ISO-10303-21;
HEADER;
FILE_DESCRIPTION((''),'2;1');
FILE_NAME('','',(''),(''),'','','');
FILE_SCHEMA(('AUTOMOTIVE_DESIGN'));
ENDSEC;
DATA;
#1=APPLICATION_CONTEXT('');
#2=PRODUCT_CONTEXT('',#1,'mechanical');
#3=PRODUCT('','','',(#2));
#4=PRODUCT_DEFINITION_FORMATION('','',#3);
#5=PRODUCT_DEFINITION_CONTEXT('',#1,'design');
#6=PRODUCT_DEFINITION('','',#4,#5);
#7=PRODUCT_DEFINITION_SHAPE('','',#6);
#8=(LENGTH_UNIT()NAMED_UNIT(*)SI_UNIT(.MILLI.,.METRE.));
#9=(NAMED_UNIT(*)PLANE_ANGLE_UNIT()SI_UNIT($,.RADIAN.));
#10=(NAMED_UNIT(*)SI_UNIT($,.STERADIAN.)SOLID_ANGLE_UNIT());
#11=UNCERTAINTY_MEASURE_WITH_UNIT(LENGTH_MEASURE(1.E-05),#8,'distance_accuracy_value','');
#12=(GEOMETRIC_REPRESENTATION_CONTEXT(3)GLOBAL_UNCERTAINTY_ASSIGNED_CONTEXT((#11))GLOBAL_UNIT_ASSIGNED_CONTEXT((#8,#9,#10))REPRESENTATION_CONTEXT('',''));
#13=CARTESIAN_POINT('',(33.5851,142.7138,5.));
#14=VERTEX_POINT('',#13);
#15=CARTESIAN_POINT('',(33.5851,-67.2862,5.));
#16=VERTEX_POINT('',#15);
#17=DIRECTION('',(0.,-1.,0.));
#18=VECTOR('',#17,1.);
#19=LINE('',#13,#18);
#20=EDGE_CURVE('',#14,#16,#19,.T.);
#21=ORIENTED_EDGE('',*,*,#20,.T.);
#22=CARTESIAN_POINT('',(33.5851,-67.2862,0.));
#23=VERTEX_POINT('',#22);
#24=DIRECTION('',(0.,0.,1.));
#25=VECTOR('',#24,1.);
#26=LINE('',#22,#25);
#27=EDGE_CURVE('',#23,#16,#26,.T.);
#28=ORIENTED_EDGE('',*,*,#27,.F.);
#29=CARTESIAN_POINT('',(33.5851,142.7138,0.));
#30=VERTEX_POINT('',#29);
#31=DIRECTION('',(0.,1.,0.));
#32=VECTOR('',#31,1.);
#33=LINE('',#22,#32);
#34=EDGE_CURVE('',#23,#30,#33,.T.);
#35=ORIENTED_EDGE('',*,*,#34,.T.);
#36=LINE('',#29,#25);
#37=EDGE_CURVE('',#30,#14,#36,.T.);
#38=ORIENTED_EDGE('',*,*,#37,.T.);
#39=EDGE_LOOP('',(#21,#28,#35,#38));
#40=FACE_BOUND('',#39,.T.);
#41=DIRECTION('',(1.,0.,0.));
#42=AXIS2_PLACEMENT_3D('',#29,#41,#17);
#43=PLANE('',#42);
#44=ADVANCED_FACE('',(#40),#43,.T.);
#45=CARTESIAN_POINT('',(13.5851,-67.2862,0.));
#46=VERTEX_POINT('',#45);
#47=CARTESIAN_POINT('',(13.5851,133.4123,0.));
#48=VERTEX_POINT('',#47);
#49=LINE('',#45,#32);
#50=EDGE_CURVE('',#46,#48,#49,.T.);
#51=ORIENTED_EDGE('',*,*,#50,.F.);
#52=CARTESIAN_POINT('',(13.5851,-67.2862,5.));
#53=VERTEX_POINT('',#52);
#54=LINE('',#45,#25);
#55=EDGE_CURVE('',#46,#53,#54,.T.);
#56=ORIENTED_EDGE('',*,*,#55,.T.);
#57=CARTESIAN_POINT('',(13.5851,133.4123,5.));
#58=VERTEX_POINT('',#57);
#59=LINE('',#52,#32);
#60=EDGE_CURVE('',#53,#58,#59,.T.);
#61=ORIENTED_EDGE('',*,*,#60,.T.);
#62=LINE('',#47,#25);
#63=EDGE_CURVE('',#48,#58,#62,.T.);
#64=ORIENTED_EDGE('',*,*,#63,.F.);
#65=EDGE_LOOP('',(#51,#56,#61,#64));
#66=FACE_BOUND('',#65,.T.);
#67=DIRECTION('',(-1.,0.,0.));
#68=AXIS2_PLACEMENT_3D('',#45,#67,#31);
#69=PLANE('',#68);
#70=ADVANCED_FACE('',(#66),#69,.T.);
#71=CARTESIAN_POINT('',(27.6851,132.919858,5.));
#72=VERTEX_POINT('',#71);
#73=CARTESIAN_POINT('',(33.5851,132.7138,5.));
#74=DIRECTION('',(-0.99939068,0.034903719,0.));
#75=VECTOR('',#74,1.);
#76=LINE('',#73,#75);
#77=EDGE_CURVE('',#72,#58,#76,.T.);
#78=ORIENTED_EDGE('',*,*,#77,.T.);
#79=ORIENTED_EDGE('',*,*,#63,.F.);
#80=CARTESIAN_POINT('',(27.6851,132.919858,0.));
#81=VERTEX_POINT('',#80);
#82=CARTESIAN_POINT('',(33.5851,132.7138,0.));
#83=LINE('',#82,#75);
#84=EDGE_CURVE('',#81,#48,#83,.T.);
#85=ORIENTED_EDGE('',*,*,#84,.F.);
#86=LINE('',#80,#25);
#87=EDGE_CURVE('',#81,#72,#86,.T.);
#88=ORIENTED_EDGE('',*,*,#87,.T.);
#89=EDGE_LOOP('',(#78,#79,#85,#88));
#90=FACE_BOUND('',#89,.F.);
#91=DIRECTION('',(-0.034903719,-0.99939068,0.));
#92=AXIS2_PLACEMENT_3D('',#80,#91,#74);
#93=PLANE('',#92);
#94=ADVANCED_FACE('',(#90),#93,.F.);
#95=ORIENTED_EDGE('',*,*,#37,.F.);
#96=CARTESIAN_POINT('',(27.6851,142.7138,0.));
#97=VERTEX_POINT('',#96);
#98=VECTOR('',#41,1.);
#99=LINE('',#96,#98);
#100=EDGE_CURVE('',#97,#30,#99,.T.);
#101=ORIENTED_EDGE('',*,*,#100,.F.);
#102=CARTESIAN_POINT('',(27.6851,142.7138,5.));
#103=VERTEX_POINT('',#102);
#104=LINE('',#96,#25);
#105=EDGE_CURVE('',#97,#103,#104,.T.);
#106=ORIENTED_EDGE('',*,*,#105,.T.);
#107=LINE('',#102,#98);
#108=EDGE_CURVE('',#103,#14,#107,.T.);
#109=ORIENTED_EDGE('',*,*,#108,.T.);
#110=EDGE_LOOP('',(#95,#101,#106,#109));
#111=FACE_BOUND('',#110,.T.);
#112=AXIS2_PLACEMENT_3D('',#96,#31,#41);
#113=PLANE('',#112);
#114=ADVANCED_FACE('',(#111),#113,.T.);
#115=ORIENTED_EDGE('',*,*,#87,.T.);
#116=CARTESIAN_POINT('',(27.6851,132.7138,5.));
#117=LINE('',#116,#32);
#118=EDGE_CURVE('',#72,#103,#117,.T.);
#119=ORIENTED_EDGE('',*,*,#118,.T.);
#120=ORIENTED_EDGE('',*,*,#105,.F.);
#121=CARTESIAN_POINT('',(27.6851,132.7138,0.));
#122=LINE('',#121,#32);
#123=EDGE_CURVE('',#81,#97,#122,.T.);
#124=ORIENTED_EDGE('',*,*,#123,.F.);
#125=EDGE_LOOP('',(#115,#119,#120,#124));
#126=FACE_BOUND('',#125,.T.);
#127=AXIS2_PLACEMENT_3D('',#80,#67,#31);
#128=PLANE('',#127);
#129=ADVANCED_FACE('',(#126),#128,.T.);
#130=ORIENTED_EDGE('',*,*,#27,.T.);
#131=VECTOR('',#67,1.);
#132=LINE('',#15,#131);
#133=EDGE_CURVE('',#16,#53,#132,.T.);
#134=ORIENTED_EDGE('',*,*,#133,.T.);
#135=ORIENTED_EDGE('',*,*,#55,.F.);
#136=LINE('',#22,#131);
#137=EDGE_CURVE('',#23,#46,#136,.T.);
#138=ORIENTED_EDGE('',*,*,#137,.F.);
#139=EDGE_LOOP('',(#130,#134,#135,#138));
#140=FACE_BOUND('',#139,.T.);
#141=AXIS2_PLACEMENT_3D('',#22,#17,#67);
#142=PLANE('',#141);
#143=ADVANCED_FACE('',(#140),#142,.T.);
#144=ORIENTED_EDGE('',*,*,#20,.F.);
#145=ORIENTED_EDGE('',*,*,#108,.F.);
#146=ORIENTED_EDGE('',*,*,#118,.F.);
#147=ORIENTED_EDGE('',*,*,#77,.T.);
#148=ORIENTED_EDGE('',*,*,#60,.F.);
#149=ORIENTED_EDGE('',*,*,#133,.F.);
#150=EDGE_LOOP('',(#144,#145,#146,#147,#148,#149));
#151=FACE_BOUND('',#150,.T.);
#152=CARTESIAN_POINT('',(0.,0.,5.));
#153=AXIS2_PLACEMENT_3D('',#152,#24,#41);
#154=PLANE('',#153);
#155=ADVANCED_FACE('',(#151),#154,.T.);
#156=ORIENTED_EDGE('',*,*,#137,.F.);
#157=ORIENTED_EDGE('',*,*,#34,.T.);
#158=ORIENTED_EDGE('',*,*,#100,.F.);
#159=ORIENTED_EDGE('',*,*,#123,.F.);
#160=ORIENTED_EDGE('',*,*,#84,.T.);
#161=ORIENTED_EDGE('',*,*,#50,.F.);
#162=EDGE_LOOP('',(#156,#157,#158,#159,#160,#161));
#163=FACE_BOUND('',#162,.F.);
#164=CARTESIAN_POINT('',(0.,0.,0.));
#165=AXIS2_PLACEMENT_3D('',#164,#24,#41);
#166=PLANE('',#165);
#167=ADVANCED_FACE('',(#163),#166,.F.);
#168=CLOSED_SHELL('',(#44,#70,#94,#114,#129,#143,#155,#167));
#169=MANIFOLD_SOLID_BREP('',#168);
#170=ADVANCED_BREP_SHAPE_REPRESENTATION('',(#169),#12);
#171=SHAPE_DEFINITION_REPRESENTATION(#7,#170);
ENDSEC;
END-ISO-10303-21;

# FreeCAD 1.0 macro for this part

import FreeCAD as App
import Part
import Sketcher
Q = App.Units.Quantity


def add_polygon(sketch, points):
    """Adds a closed chain of lines whose ends are joined by coincident constraints."""
    first, n = sketch.GeometryCount, len(points)
    for a, b in zip(points, points[1:] + points[:1]):
        sketch.addGeometry(Part.LineSegment(App.Vector(*a, 0), App.Vector(*b, 0)), False)
    for i in range(n):
        sketch.addConstraint(Sketcher.Constraint("Coincident", first + i, 2, first + (i + 1) % n, 1))

doc = App.newDocument("Part")
body = doc.addObject("PartDesign::Body", "Body")

# Sketch on XY plane
sketch1 = body.newObject("Sketcher::SketchObject", "Sketch")
sketch1.AttachmentSupport = (doc.getObject("XY_Plane"), [""])
sketch1.MapMode = "FlatFace"
add_polygon(sketch1, [(34, 143), (28, 143), (28, 133), (14, 133), (14, -67), (34, -67)])  # lines 0-5
sketch1.addConstraint(Sketcher.Constraint("Horizontal", 0))
sketch1.addConstraint(Sketcher.Constraint("Vertical", 1))
sketch1.addConstraint(Sketcher.Constraint("Vertical", 3))
sketch1.addConstraint(Sketcher.Constraint("Horizontal", 4))
sketch1.addConstraint(Sketcher.Constraint("Vertical", 5))
sketch1.addConstraint(Sketcher.Constraint("DistanceX", 4, 1, 4, 2, Q("20 mm")))
sketch1.addConstraint(Sketcher.Constraint("Angle", 2, Q("177.9998 deg")))
sketch1.addConstraint(Sketcher.Constraint("DistanceX", 0, 2, 0, 1, Q("5.9 mm")))
sketch1.addConstraint(Sketcher.Constraint("DistanceY", 5, 1, 5, 2, Q("210 mm")))
sketch1.addConstraint(Sketcher.Constraint("DistanceY", 1, 2, 1, 1, Q("9.794 mm")))
sketch1.addConstraint(Sketcher.Constraint("DistanceX", -1, 1, 0, 2, Q("27.685 mm")))
sketch1.addConstraint(Sketcher.Constraint("DistanceY", -1, 1, 0, 2, Q("142.7138 mm")))
pad1 = body.newObject("PartDesign::Pad", "Pad")
pad1.Profile = sketch1
pad1.Length = 5

doc.recompute()
